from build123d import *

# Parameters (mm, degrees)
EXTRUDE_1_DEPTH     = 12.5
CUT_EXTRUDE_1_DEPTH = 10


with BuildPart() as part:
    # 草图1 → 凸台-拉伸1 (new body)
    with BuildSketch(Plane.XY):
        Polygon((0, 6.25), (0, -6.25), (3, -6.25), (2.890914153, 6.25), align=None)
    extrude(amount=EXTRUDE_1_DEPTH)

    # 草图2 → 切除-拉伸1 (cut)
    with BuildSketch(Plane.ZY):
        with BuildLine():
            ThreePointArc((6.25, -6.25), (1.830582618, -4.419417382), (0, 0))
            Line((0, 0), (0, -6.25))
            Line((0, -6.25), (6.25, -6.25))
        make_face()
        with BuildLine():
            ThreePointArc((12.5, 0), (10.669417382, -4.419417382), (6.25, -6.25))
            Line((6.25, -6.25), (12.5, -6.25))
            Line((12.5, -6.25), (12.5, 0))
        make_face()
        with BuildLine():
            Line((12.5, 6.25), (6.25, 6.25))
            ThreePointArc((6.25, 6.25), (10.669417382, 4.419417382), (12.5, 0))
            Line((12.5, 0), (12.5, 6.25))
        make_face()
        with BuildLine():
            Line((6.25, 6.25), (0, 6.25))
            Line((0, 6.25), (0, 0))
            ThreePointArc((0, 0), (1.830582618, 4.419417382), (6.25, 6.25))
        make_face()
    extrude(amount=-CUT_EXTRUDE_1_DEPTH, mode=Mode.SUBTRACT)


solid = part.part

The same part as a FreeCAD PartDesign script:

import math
import FreeCAD as App
import Part
import Sketcher
Q = App.Units.Quantity


def add_polygon(sketch, points):
    """Adds a closed chain of lines whose ends are joined by coincident constraints."""
    first, n = sketch.GeometryCount, len(points)
    for a, b in zip(points, points[1:] + points[:1]):
        sketch.addGeometry(Part.LineSegment(App.Vector(*a, 0), App.Vector(*b, 0)), False)
    for i in range(n):
        sketch.addConstraint(Sketcher.Constraint("Coincident", first + i, 2, first + (i + 1) % n, 1))

doc = App.newDocument("Part")
params = doc.addObject("Spreadsheet::Sheet", "Params")
for row, (alias, value) in enumerate([
    ("sketch1_width", "3 mm"),
    ("sketch1_height", "12.5 mm"),
    ("pad1_length", "12.5 mm"),
    ("sketch2_radius", "6.25 mm"),
    ("pocket1_length", "10 mm"),
], start=1):
    params.set(f"A{row}", alias)
    params.set(f"B{row}", "=" + value)
    params.setAlias(f"B{row}", alias)

body = doc.addObject("PartDesign::Body", "Body")

# Sketch on XY plane
sketch1 = doc.addObject("Sketcher::SketchObject", "Sketch")
body.addObject(sketch1)
sketch1.AttachmentSupport = (doc.XY_Plane, [""])
sketch1.MapMode = "FlatFace"
add_polygon(sketch1, [(0, 6.2), (0, -6.2), (3, -6.2), (2.9, 6.2)])  # lines 0-3
sketch1.addConstraint(Sketcher.Constraint("Vertical", 0))
sketch1.addConstraint(Sketcher.Constraint("Horizontal", 1))
sketch1.addConstraint(Sketcher.Constraint("Horizontal", 3))
sketch1.addConstraint(Sketcher.Constraint("Symmetric", 0, 2, 3, 2, -1, 1))
sketch1.addConstraint(Sketcher.Constraint("DistanceX", 1, 1, 1, 2, Q("3 mm")))
sketch1.addConstraint(Sketcher.Constraint("DistanceY", 0, 2, 0, 1, Q("12.5 mm")))
sketch1.addConstraint(Sketcher.Constraint("Angle", 2, Q("90.5 deg")))
sketch1.setExpression("Constraints[8]", "Params.sketch1_width")
sketch1.setExpression("Constraints[9]", "Params.sketch1_height")
pad1 = doc.addObject("PartDesign::Pad", "Pad")
body.addObject(pad1)
pad1.Profile = sketch1
pad1.setExpression("Length", "Params.pad1_length")

# Sketch on YZ plane
sketch2 = doc.addObject("Sketcher::SketchObject", "Sketch001")
body.addObject(sketch2)
sketch2.AttachmentSupport = (doc.YZ_Plane, [""])
sketch2.MapMode = "FlatFace"
sketch2.addGeometry(Part.ArcOfCircle(Part.Circle(App.Vector(0, 6, 0), App.Vector(0, 0, 1), 6), math.radians(-180), math.radians(-90)), False)
sketch2.addGeometry(Part.LineSegment(App.Vector(0, 0, 0), App.Vector(-6, 0, 0)), False)
sketch2.addGeometry(Part.LineSegment(App.Vector(-6, 0, 0), App.Vector(-6, 6, 0)), False)
sketch2.addGeometry(Part.ArcOfCircle(Part.Circle(App.Vector(0, 6, 0), App.Vector(0, 0, 1), 6), math.radians(90), math.radians(180)), False)
sketch2.addGeometry(Part.LineSegment(App.Vector(-6, 6, 0), App.Vector(-6, 12, 0)), False)
sketch2.addGeometry(Part.LineSegment(App.Vector(-6, 12, 0), App.Vector(0, 12, 0)), False)
sketch2.addGeometry(Part.LineSegment(App.Vector(6, 12, 0), App.Vector(6, 6, 0)), False)
sketch2.addGeometry(Part.ArcOfCircle(Part.Circle(App.Vector(0, 6, 0), App.Vector(0, 0, 1), 6), math.radians(0), math.radians(90)), False)
sketch2.addGeometry(Part.LineSegment(App.Vector(0, 12, 0), App.Vector(6, 12, 0)), False)
sketch2.addGeometry(Part.LineSegment(App.Vector(6, 6, 0), App.Vector(6, 0, 0)), False)
sketch2.addGeometry(Part.LineSegment(App.Vector(6, 0, 0), App.Vector(0, 0, 0)), False)
sketch2.addGeometry(Part.ArcOfCircle(Part.Circle(App.Vector(0, 6, 0), App.Vector(0, 0, 1), 6), math.radians(-90), math.radians(0)), False)
sketch2.addConstraint(Sketcher.Constraint("Tangent", 0, 2, 1, 1))
sketch2.addConstraint(Sketcher.Constraint("Coincident", 1, 2, 2, 1))
sketch2.addConstraint(Sketcher.Constraint("Tangent", 2, 2, 0, 1))
sketch2.addConstraint(Sketcher.Constraint("Tangent", 3, 2, 4, 1))
sketch2.addConstraint(Sketcher.Constraint("Coincident", 4, 2, 5, 1))
sketch2.addConstraint(Sketcher.Constraint("Tangent", 5, 2, 3, 1))
sketch2.addConstraint(Sketcher.Constraint("Tangent", 6, 2, 7, 1))
sketch2.addConstraint(Sketcher.Constraint("Tangent", 7, 2, 8, 1))
sketch2.addConstraint(Sketcher.Constraint("Coincident", 8, 2, 6, 1))
sketch2.addConstraint(Sketcher.Constraint("Coincident", 9, 2, 10, 1))
sketch2.addConstraint(Sketcher.Constraint("Tangent", 10, 2, 11, 1))
sketch2.addConstraint(Sketcher.Constraint("Tangent", 11, 2, 9, 1))
sketch2.addConstraint(Sketcher.Constraint("Horizontal", 1))
sketch2.addConstraint(Sketcher.Constraint("Vertical", 2))
sketch2.addConstraint(Sketcher.Constraint("Vertical", 4))
sketch2.addConstraint(Sketcher.Constraint("Horizontal", 5))
sketch2.addConstraint(Sketcher.Constraint("Vertical", 6))
sketch2.addConstraint(Sketcher.Constraint("Horizontal", 8))
sketch2.addConstraint(Sketcher.Constraint("Vertical", 9))
sketch2.addConstraint(Sketcher.Constraint("Horizontal", 10))
sketch2.addConstraint(Sketcher.Constraint("Coincident", 0, 2, -1, 1))
sketch2.addConstraint(Sketcher.Constraint("Coincident", 10, 2, -1, 1))
sketch2.addConstraint(Sketcher.Constraint("Coincident", 3, 3, 0, 3))
sketch2.addConstraint(Sketcher.Constraint("Coincident", 7, 3, 0, 3))
sketch2.addConstraint(Sketcher.Constraint("Coincident", 11, 2, 6, 2))
sketch2.addConstraint(Sketcher.Constraint("Equal", 0, 3))
sketch2.addConstraint(Sketcher.Constraint("Radius", 0, Q("6.25 mm")))
sketch2.setExpression("Constraints[26]", "Params.sketch2_radius")
pocket1 = doc.addObject("PartDesign::Pocket", "Pocket")
body.addObject(pocket1)
pocket1.Profile = sketch2
pocket1.setExpression("Length", "Params.pocket1_length")
pocket1.Reversed = True

doc.recompute()
